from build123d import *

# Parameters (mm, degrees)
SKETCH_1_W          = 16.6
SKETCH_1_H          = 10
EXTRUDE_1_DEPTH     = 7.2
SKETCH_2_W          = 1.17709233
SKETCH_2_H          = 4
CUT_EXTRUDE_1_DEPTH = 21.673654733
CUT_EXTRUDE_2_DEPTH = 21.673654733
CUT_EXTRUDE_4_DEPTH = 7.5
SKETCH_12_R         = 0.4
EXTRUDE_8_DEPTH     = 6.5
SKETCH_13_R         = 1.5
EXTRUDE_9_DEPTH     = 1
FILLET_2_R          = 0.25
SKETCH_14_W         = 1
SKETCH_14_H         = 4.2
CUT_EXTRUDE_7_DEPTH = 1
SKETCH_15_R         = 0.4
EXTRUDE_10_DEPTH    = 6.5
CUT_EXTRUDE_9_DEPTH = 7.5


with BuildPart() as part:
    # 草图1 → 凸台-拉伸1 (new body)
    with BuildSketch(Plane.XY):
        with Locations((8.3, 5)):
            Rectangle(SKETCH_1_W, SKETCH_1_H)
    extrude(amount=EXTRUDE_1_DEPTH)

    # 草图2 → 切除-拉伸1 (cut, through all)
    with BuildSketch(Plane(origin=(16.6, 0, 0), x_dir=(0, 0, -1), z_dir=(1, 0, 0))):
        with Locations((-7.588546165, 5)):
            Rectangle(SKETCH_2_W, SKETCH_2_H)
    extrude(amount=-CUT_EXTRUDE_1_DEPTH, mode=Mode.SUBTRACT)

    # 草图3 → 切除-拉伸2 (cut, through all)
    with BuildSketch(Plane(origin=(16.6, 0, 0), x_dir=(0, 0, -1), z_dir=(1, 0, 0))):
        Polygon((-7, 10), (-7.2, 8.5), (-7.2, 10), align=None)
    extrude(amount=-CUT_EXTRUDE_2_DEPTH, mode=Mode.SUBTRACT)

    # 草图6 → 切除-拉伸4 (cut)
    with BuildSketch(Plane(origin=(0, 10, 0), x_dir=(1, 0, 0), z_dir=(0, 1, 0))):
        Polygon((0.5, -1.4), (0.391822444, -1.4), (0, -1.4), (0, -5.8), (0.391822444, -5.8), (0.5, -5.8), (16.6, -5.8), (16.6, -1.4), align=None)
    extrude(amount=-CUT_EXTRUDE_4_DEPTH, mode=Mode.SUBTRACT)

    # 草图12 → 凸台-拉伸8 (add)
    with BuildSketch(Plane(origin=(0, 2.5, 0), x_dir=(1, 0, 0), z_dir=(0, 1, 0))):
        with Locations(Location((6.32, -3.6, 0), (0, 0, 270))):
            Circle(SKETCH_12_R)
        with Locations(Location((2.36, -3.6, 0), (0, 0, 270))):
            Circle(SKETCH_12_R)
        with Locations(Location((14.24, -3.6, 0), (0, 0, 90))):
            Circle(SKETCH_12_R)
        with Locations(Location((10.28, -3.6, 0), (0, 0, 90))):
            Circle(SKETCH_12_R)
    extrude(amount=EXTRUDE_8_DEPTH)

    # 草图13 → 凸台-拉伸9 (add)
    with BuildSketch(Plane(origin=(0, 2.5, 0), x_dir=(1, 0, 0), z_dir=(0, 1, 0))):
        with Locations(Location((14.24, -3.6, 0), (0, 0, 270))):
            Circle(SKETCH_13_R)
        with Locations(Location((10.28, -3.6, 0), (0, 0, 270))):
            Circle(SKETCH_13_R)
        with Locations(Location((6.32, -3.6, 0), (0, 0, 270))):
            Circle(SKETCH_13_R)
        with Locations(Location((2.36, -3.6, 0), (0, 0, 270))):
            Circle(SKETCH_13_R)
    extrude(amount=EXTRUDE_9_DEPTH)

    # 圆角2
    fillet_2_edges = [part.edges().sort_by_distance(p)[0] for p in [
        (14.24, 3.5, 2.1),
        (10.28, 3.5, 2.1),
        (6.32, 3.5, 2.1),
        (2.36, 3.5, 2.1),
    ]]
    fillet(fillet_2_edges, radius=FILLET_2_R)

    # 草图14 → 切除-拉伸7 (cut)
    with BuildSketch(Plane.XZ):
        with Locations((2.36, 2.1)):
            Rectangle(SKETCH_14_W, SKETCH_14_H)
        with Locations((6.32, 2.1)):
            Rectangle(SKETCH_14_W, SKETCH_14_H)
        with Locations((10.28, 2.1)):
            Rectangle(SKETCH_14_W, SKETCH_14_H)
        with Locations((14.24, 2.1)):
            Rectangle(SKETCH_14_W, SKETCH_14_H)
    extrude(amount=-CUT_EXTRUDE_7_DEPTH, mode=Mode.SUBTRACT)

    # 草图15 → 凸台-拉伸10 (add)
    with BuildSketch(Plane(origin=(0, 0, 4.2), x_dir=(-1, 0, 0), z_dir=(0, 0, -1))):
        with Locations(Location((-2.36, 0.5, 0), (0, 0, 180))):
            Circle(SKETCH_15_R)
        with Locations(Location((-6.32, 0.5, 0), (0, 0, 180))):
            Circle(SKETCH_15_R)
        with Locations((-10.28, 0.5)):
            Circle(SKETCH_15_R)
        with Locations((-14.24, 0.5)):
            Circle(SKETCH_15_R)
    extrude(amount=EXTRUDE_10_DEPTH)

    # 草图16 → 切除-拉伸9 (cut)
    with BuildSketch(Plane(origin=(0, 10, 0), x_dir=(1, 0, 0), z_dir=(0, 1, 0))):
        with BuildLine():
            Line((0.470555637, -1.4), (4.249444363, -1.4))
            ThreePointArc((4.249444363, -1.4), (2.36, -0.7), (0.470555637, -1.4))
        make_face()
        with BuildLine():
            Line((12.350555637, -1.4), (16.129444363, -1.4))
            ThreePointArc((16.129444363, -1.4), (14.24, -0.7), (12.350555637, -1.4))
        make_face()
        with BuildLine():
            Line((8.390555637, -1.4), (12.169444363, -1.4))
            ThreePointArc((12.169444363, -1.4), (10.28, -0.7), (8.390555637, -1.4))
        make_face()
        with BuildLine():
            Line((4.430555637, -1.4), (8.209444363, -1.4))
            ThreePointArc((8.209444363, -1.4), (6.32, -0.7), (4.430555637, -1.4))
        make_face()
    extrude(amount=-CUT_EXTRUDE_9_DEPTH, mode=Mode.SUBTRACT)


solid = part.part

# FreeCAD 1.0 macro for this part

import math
import FreeCAD as App
import Part
import Sketcher
from FreeCAD import Vector


def edges_at(feature, points):
    """Names of the edges that pass closest to the given points."""
    edges = feature.Shape.Edges
    near = lambda p: min(range(len(edges)), key=lambda i: edges[i].distToShape(Part.Vertex(*p))[0])
    return sorted({f"Edge{near(p) + 1}" for p in points})

doc = App.newDocument("Part")
body = doc.addObject("PartDesign::Body", "Body")

# Sketch on XY plane
sketch1 = body.newObject("Sketcher::SketchObject", "Sketch")
sketch1.AttachmentSupport = (doc.getObject("XY_Plane"), [""])
sketch1.MapMode = "FlatFace"
sketch1.addGeometry(Part.LineSegment(Vector(0, 10, 0), Vector(0, 0, 0)), False)
sketch1.addGeometry(Part.LineSegment(Vector(0, 0, 0), Vector(17, 0, 0)), False)
sketch1.addGeometry(Part.LineSegment(Vector(17, 0, 0), Vector(17, 10, 0)), False)
sketch1.addGeometry(Part.LineSegment(Vector(17, 10, 0), Vector(0, 10, 0)), False)
sketch1.addConstraint(Sketcher.Constraint("Coincident", 0, 2, 1, 1))
sketch1.addConstraint(Sketcher.Constraint("Coincident", 1, 2, 2, 1))
sketch1.addConstraint(Sketcher.Constraint("Coincident", 2, 2, 3, 1))
sketch1.addConstraint(Sketcher.Constraint("Coincident", 3, 2, 0, 1))
sketch1.addConstraint(Sketcher.Constraint("Vertical", 0))
sketch1.addConstraint(Sketcher.Constraint("Horizontal", 1))
sketch1.addConstraint(Sketcher.Constraint("Vertical", 2))
sketch1.addConstraint(Sketcher.Constraint("Horizontal", 3))
sketch1.addConstraint(Sketcher.Constraint("Coincident", 0, 2, -1, 1))
sketch1.addConstraint(Sketcher.Constraint("DistanceY", 0, 2, 0, 1, 10.0))
sketch1.addConstraint(Sketcher.Constraint("DistanceX", 1, 1, 1, 2, 16.6))
pad1 = body.newObject("PartDesign::Pad", "Pad")
pad1.Profile = sketch1
pad1.Length = 7.2

# Sketch on YZ plane
sketch2 = body.newObject("Sketcher::SketchObject", "Sketch001")
sketch2.AttachmentSupport = (doc.getObject("YZ_Plane"), [""])
sketch2.MapMode = "FlatFace"
sketch2.AttachmentOffset = App.Placement(Vector(0, 0, 16.6), App.Rotation())
sketch2.addGeometry(Part.LineSegment(Vector(7, 8.2, 0), Vector(3, 8.2, 0)), False)
sketch2.addGeometry(Part.LineSegment(Vector(3, 8.2, 0), Vector(3, 7, 0)), False)
sketch2.addGeometry(Part.LineSegment(Vector(3, 7, 0), Vector(7, 7, 0)), False)
sketch2.addGeometry(Part.LineSegment(Vector(7, 7, 0), Vector(7, 8.2, 0)), False)
sketch2.addConstraint(Sketcher.Constraint("Coincident", 0, 2, 1, 1))
sketch2.addConstraint(Sketcher.Constraint("Coincident", 1, 2, 2, 1))
sketch2.addConstraint(Sketcher.Constraint("Coincident", 2, 2, 3, 1))
sketch2.addConstraint(Sketcher.Constraint("Coincident", 3, 2, 0, 1))
sketch2.addConstraint(Sketcher.Constraint("Horizontal", 0))
sketch2.addConstraint(Sketcher.Constraint("Vertical", 1))
sketch2.addConstraint(Sketcher.Constraint("Horizontal", 2))
sketch2.addConstraint(Sketcher.Constraint("Vertical", 3))
sketch2.addConstraint(Sketcher.Constraint("DistanceX", 0, 2, 0, 1, 4.0))
sketch2.addConstraint(Sketcher.Constraint("DistanceX", -1, 1, 0, 2, 3.0))
sketch2.addConstraint(Sketcher.Constraint("DistanceY", -1, 1, 1, 2, 7.0))
sketch2.addConstraint(Sketcher.Constraint("DistanceY", 1, 2, 1, 1, 1.177092))
pocket1 = body.newObject("PartDesign::Pocket", "Pocket")
pocket1.Profile = sketch2
pocket1.Type = "ThroughAll"

# Sketch on YZ plane
sketch3 = body.newObject("Sketcher::SketchObject", "Sketch002")
sketch3.AttachmentSupport = (doc.getObject("YZ_Plane"), [""])
sketch3.MapMode = "FlatFace"
sketch3.AttachmentOffset = App.Placement(Vector(0, 0, 16.6), App.Rotation())
sketch3.addGeometry(Part.LineSegment(Vector(8.5, 7.2, 0), Vector(10, 7, 0)), False)
sketch3.addGeometry(Part.LineSegment(Vector(10, 7, 0), Vector(10, 7.2, 0)), False)
sketch3.addGeometry(Part.LineSegment(Vector(10, 7.2, 0), Vector(8.5, 7.2, 0)), False)
sketch3.addConstraint(Sketcher.Constraint("Coincident", 0, 2, 1, 1))
sketch3.addConstraint(Sketcher.Constraint("Coincident", 1, 2, 2, 1))
sketch3.addConstraint(Sketcher.Constraint("Coincident", 2, 2, 0, 1))
sketch3.addConstraint(Sketcher.Constraint("Vertical", 1))
sketch3.addConstraint(Sketcher.Constraint("Horizontal", 2))
sketch3.addConstraint(Sketcher.Constraint("DistanceX", 2, 2, 2, 1, 1.5))
sketch3.addConstraint(Sketcher.Constraint("DistanceY", 1, 1, 1, 2, 0.2))
sketch3.addConstraint(Sketcher.Constraint("DistanceX", -1, 1, 0, 2, 10.0))
sketch3.addConstraint(Sketcher.Constraint("DistanceY", -1, 1, 0, 2, 7.0))
pocket2 = body.newObject("PartDesign::Pocket", "Pocket001")
pocket2.Profile = sketch3
pocket2.Type = "ThroughAll"

# Sketch on XZ plane
sketch4 = body.newObject("Sketcher::SketchObject", "Sketch003")
sketch4.AttachmentSupport = (doc.getObject("XZ_Plane"), [""])
sketch4.MapMode = "FlatFace"
sketch4.AttachmentOffset = App.Placement(Vector(0, 0, -10), App.Rotation())
sketch4.addGeometry(Part.LineSegment(Vector(0, 1.4, 0), Vector(0, 5.8, 0)), False)
sketch4.addGeometry(Part.LineSegment(Vector(0, 5.8, 0), Vector(16.6, 5.8, 0)), False)
sketch4.addGeometry(Part.LineSegment(Vector(16.6, 5.8, 0), Vector(16.6, 1.4, 0)), False)
sketch4.addGeometry(Part.LineSegment(Vector(16.6, 1.4, 0), Vector(0, 1.4, 0)), False)
sketch4.addConstraint(Sketcher.Constraint("Coincident", 0, 2, 1, 1))
sketch4.addConstraint(Sketcher.Constraint("Coincident", 1, 2, 2, 1))
sketch4.addConstraint(Sketcher.Constraint("Coincident", 2, 2, 3, 1))
sketch4.addConstraint(Sketcher.Constraint("Coincident", 3, 2, 0, 1))
sketch4.addConstraint(Sketcher.Constraint("Vertical", 0))
sketch4.addConstraint(Sketcher.Constraint("Horizontal", 1))
sketch4.addConstraint(Sketcher.Constraint("Vertical", 2))
sketch4.addConstraint(Sketcher.Constraint("Horizontal", 3))
sketch4.addConstraint(Sketcher.Constraint("PointOnObject", 0, 2, -2))
sketch4.addConstraint(Sketcher.Constraint("DistanceX", 1, 1, 1, 2, 16.6))
sketch4.addConstraint(Sketcher.Constraint("DistanceY", 0, 1, 0, 2, 4.4))
sketch4.addConstraint(Sketcher.Constraint("DistanceY", -1, 1, 0, 2, 5.8))
pocket3 = body.newObject("PartDesign::Pocket", "Pocket002")
pocket3.Profile = sketch4
pocket3.Length = 7.5
pocket3.Reversed = True

# Sketch on XZ plane
sketch5 = body.newObject("Sketcher::SketchObject", "Sketch004")
sketch5.AttachmentSupport = (doc.getObject("XZ_Plane"), [""])
sketch5.MapMode = "FlatFace"
sketch5.AttachmentOffset = App.Placement(Vector(0, 0, -2.5), App.Rotation())
sketch5.addGeometry(Part.Circle(Vector(6.32, 3.6, 0), Vector(0, 0, 1), 0.4), False)
sketch5.addGeometry(Part.Circle(Vector(2.36, 3.6, 0), Vector(0, 0, 1), 0.4), False)
sketch5.addGeometry(Part.Circle(Vector(14.24, 3.6, 0), Vector(0, 0, 1), 0.4), False)
sketch5.addGeometry(Part.Circle(Vector(10.28, 3.6, 0), Vector(0, 0, 1), 0.4), False)
sketch5.addConstraint(Sketcher.Constraint("Equal", 0, 1))
sketch5.addConstraint(Sketcher.Constraint("Equal", 1, 2))
sketch5.addConstraint(Sketcher.Constraint("Equal", 2, 3))
sketch5.addConstraint(Sketcher.Constraint("Horizontal", 0, 3, 1, 3))
sketch5.addConstraint(Sketcher.Constraint("Horizontal", 1, 3, 2, 3))
sketch5.addConstraint(Sketcher.Constraint("Horizontal", 2, 3, 3, 3))
sketch5.addConstraint(Sketcher.Constraint("Diameter", 0, 0.8))
sketch5.addConstraint(Sketcher.Constraint("DistanceY", -1, 1, 0, 3, 3.6))
sketch5.addConstraint(Sketcher.Constraint("DistanceX", -1, 1, 0, 3, 6.32))
sketch5.addConstraint(Sketcher.Constraint("DistanceX", -1, 1, 1, 3, 2.36))
sketch5.addConstraint(Sketcher.Constraint("DistanceX", -1, 1, 2, 3, 14.24))
sketch5.addConstraint(Sketcher.Constraint("DistanceX", -1, 1, 3, 3, 10.28))
pad2 = body.newObject("PartDesign::Pad", "Pad001")
pad2.Profile = sketch5
pad2.Length = 6.5
pad2.Reversed = True

# Sketch on XZ plane
sketch6 = body.newObject("Sketcher::SketchObject", "Sketch005")
sketch6.AttachmentSupport = (doc.getObject("XZ_Plane"), [""])
sketch6.MapMode = "FlatFace"
sketch6.AttachmentOffset = App.Placement(Vector(0, 0, -2.5), App.Rotation())
sketch6.addGeometry(Part.Circle(Vector(14.2, 3.6, 0), Vector(0, 0, 1), 1.5), False)
sketch6.addGeometry(Part.Circle(Vector(10.3, 3.6, 0), Vector(0, 0, 1), 1.5), False)
sketch6.addGeometry(Part.Circle(Vector(6.3, 3.6, 0), Vector(0, 0, 1), 1.5), False)
sketch6.addGeometry(Part.Circle(Vector(2.4, 3.6, 0), Vector(0, 0, 1), 1.5), False)
sketch6.addConstraint(Sketcher.Constraint("Equal", 0, 1))
sketch6.addConstraint(Sketcher.Constraint("Equal", 1, 2))
sketch6.addConstraint(Sketcher.Constraint("Equal", 2, 3))
sketch6.addConstraint(Sketcher.Constraint("Horizontal", 0, 3, 1, 3))
sketch6.addConstraint(Sketcher.Constraint("Horizontal", 1, 3, 2, 3))
sketch6.addConstraint(Sketcher.Constraint("Horizontal", 2, 3, 3, 3))
sketch6.addConstraint(Sketcher.Constraint("Diameter", 0, 3.0))
sketch6.addConstraint(Sketcher.Constraint("DistanceY", -1, 1, 0, 3, 3.6))
sketch6.addConstraint(Sketcher.Constraint("DistanceX", -1, 1, 0, 3, 14.24))
sketch6.addConstraint(Sketcher.Constraint("DistanceX", -1, 1, 1, 3, 10.28))
sketch6.addConstraint(Sketcher.Constraint("DistanceX", -1, 1, 2, 3, 6.32))
sketch6.addConstraint(Sketcher.Constraint("DistanceX", -1, 1, 3, 3, 2.36))
pad3 = body.newObject("PartDesign::Pad", "Pad002")
pad3.Profile = sketch6
pad3.Length = 1
pad3.Reversed = True
doc.recompute()

fillet = body.newObject("PartDesign::Fillet", "Fillet")
fillet.Base = (pad3, edges_at(pad3, [
    (14.24, 3.5, 2.1),
    (10.28, 3.5, 2.1),
    (6.32, 3.5, 2.1),
    (2.36, 3.5, 2.1),
]))
fillet.Radius = 0.25

# Sketch on XZ plane
sketch7 = body.newObject("Sketcher::SketchObject", "Sketch006")
sketch7.AttachmentSupport = (doc.getObject("XZ_Plane"), [""])
sketch7.MapMode = "FlatFace"
sketch7.addGeometry(Part.LineSegment(Vector(1.9, 4.2, 0), Vector(1.9, 0, 0)), False)
sketch7.addGeometry(Part.LineSegment(Vector(1.9, 0, 0), Vector(2.9, 0, 0)), False)
sketch7.addGeometry(Part.LineSegment(Vector(2.9, 0, 0), Vector(2.9, 4.2, 0)), False)
sketch7.addGeometry(Part.LineSegment(Vector(2.9, 4.2, 0), Vector(1.9, 4.2, 0)), False)
sketch7.addGeometry(Part.LineSegment(Vector(5.8, 4.2, 0), Vector(5.8, 0, 0)), False)
sketch7.addGeometry(Part.LineSegment(Vector(5.8, 0, 0), Vector(6.8, 0, 0)), False)
sketch7.addGeometry(Part.LineSegment(Vector(6.8, 0, 0), Vector(6.8, 4.2, 0)), False)
sketch7.addGeometry(Part.LineSegment(Vector(6.8, 4.2, 0), Vector(5.8, 4.2, 0)), False)
sketch7.addGeometry(Part.LineSegment(Vector(9.8, 4.2, 0), Vector(9.8, 0, 0)), False)
sketch7.addGeometry(Part.LineSegment(Vector(9.8, 0, 0), Vector(10.8, 0, 0)), False)
sketch7.addGeometry(Part.LineSegment(Vector(10.8, 0, 0), Vector(10.8, 4.2, 0)), False)
sketch7.addGeometry(Part.LineSegment(Vector(10.8, 4.2, 0), Vector(9.8, 4.2, 0)), False)
sketch7.addGeometry(Part.LineSegment(Vector(13.7, 4.2, 0), Vector(13.7, 0, 0)), False)
sketch7.addGeometry(Part.LineSegment(Vector(13.7, 0, 0), Vector(14.7, 0, 0)), False)
sketch7.addGeometry(Part.LineSegment(Vector(14.7, 0, 0), Vector(14.7, 4.2, 0)), False)
sketch7.addGeometry(Part.LineSegment(Vector(14.7, 4.2, 0), Vector(13.7, 4.2, 0)), False)
sketch7.addConstraint(Sketcher.Constraint("Coincident", 0, 2, 1, 1))
sketch7.addConstraint(Sketcher.Constraint("Coincident", 1, 2, 2, 1))
sketch7.addConstraint(Sketcher.Constraint("Coincident", 2, 2, 3, 1))
sketch7.addConstraint(Sketcher.Constraint("Coincident", 3, 2, 0, 1))
sketch7.addConstraint(Sketcher.Constraint("Coincident", 4, 2, 5, 1))
sketch7.addConstraint(Sketcher.Constraint("Coincident", 5, 2, 6, 1))
sketch7.addConstraint(Sketcher.Constraint("Coincident", 6, 2, 7, 1))
sketch7.addConstraint(Sketcher.Constraint("Coincident", 7, 2, 4, 1))
sketch7.addConstraint(Sketcher.Constraint("Coincident", 8, 2, 9, 1))
sketch7.addConstraint(Sketcher.Constraint("Coincident", 9, 2, 10, 1))
sketch7.addConstraint(Sketcher.Constraint("Coincident", 10, 2, 11, 1))
sketch7.addConstraint(Sketcher.Constraint("Coincident", 11, 2, 8, 1))
sketch7.addConstraint(Sketcher.Constraint("Coincident", 12, 2, 13, 1))
sketch7.addConstraint(Sketcher.Constraint("Coincident", 13, 2, 14, 1))
sketch7.addConstraint(Sketcher.Constraint("Coincident", 14, 2, 15, 1))
sketch7.addConstraint(Sketcher.Constraint("Coincident", 15, 2, 12, 1))
sketch7.addConstraint(Sketcher.Constraint("Vertical", 0))
sketch7.addConstraint(Sketcher.Constraint("Horizontal", 1))
sketch7.addConstraint(Sketcher.Constraint("Vertical", 2))
sketch7.addConstraint(Sketcher.Constraint("Horizontal", 3))
sketch7.addConstraint(Sketcher.Constraint("Vertical", 4))
sketch7.addConstraint(Sketcher.Constraint("Horizontal", 5))
sketch7.addConstraint(Sketcher.Constraint("Vertical", 6))
sketch7.addConstraint(Sketcher.Constraint("Horizontal", 7))
sketch7.addConstraint(Sketcher.Constraint("Vertical", 8))
sketch7.addConstraint(Sketcher.Constraint("Horizontal", 9))
sketch7.addConstraint(Sketcher.Constraint("Vertical", 10))
sketch7.addConstraint(Sketcher.Constraint("Horizontal", 11))
sketch7.addConstraint(Sketcher.Constraint("Vertical", 12))
sketch7.addConstraint(Sketcher.Constraint("Horizontal", 13))
sketch7.addConstraint(Sketcher.Constraint("Vertical", 14))
sketch7.addConstraint(Sketcher.Constraint("Horizontal", 15))
sketch7.addConstraint(Sketcher.Constraint("PointOnObject", 0, 2, -1))
sketch7.addConstraint(Sketcher.Constraint("PointOnObject", 4, 2, -1))
sketch7.addConstraint(Sketcher.Constraint("PointOnObject", 8, 2, -1))
sketch7.addConstraint(Sketcher.Constraint("PointOnObject", 12, 2, -1))
sketch7.addConstraint(Sketcher.Constraint("Horizontal", 3, 2, 6, 2))
sketch7.addConstraint(Sketcher.Constraint("Horizontal", 7, 2, 10, 2))
sketch7.addConstraint(Sketcher.Constraint("Horizontal", 11, 2, 14, 2))
sketch7.addConstraint(Sketcher.Constraint("Equal", 3, 5))
sketch7.addConstraint(Sketcher.Constraint("Equal", 7, 9))
sketch7.addConstraint(Sketcher.Constraint("Equal", 11, 13))
sketch7.addConstraint(Sketcher.Constraint("DistanceX", 1, 1, 1, 2, 1.0))
sketch7.addConstraint(Sketcher.Constraint("DistanceY", 0, 2, 0, 1, 4.2))
sketch7.addConstraint(Sketcher.Constraint("DistanceX", -1, 1, 0, 2, 1.86))
sketch7.addConstraint(Sketcher.Constraint("DistanceX", -1, 1, 4, 2, 5.82))
sketch7.addConstraint(Sketcher.Constraint("DistanceX", -1, 1, 8, 2, 9.78))
sketch7.addConstraint(Sketcher.Constraint("DistanceX", -1, 1, 12, 2, 13.74))
pocket4 = body.newObject("PartDesign::Pocket", "Pocket003")
pocket4.Profile = sketch7
pocket4.Length = 1

# Sketch on XY plane
sketch8 = body.newObject("Sketcher::SketchObject", "Sketch007")
sketch8.AttachmentSupport = (doc.getObject("XY_Plane"), [""])
sketch8.MapMode = "FlatFace"
sketch8.AttachmentOffset = App.Placement(Vector(0, 0, 4.2), App.Rotation())
sketch8.addGeometry(Part.Circle(Vector(2.36, 0.5, 0), Vector(0, 0, 1), 0.4), False)
sketch8.addGeometry(Part.Circle(Vector(6.32, 0.5, 0), Vector(0, 0, 1), 0.4), False)
sketch8.addGeometry(Part.Circle(Vector(10.28, 0.5, 0), Vector(0, 0, 1), 0.4), False)
sketch8.addGeometry(Part.Circle(Vector(14.24, 0.5, 0), Vector(0, 0, 1), 0.4), False)
sketch8.addConstraint(Sketcher.Constraint("Equal", 0, 1))
sketch8.addConstraint(Sketcher.Constraint("Equal", 1, 2))
sketch8.addConstraint(Sketcher.Constraint("Equal", 2, 3))
sketch8.addConstraint(Sketcher.Constraint("Horizontal", 0, 3, 1, 3))
sketch8.addConstraint(Sketcher.Constraint("Horizontal", 1, 3, 2, 3))
sketch8.addConstraint(Sketcher.Constraint("Horizontal", 2, 3, 3, 3))
sketch8.addConstraint(Sketcher.Constraint("Diameter", 0, 0.8))
sketch8.addConstraint(Sketcher.Constraint("DistanceY", -1, 1, 0, 3, 0.5))
sketch8.addConstraint(Sketcher.Constraint("DistanceX", -1, 1, 0, 3, 2.36))
sketch8.addConstraint(Sketcher.Constraint("DistanceX", -1, 1, 1, 3, 6.32))
sketch8.addConstraint(Sketcher.Constraint("DistanceX", -1, 1, 2, 3, 10.28))
sketch8.addConstraint(Sketcher.Constraint("DistanceX", -1, 1, 3, 3, 14.24))
pad4 = body.newObject("PartDesign::Pad", "Pad003")
pad4.Profile = sketch8
pad4.Length = 6.5
pad4.Reversed = True

# Sketch on XZ plane
sketch9 = body.newObject("Sketcher::SketchObject", "Sketch008")
sketch9.AttachmentSupport = (doc.getObject("XZ_Plane"), [""])
sketch9.MapMode = "FlatFace"
sketch9.AttachmentOffset = App.Placement(Vector(0, 0, -10), App.Rotation())
sketch9.addGeometry(Part.LineSegment(Vector(0.5, 1.4, 0), Vector(4.2, 1.4, 0)), False)
sketch9.addGeometry(Part.ArcOfCircle(Part.Circle(Vector(2.4, 3.6, 0), Vector(0, 0, 1), 2.9), math.radians(-131), math.radians(-49)), False)
sketch9.addGeometry(Part.LineSegment(Vector(12.4, 1.4, 0), Vector(16.1, 1.4, 0)), False)
sketch9.addGeometry(Part.ArcOfCircle(Part.Circle(Vector(14.2, 3.6, 0), Vector(0, 0, 1), 2.9), math.radians(-131), math.radians(-49)), False)
sketch9.addGeometry(Part.LineSegment(Vector(8.4, 1.4, 0), Vector(12.2, 1.4, 0)), False)
sketch9.addGeometry(Part.ArcOfCircle(Part.Circle(Vector(10.3, 3.6, 0), Vector(0, 0, 1), 2.9), math.radians(-131), math.radians(-49)), False)
sketch9.addGeometry(Part.LineSegment(Vector(4.4, 1.4, 0), Vector(8.2, 1.4, 0)), False)
sketch9.addGeometry(Part.ArcOfCircle(Part.Circle(Vector(6.3, 3.6, 0), Vector(0, 0, 1), 2.9), math.radians(-131), math.radians(-49)), False)
sketch9.addConstraint(Sketcher.Constraint("Coincident", 0, 1, 1, 1))
sketch9.addConstraint(Sketcher.Constraint("Coincident", 1, 2, 0, 2))
sketch9.addConstraint(Sketcher.Constraint("Coincident", 2, 1, 3, 1))
sketch9.addConstraint(Sketcher.Constraint("Coincident", 3, 2, 2, 2))
sketch9.addConstraint(Sketcher.Constraint("Coincident", 4, 1, 5, 1))
sketch9.addConstraint(Sketcher.Constraint("Coincident", 5, 2, 4, 2))
sketch9.addConstraint(Sketcher.Constraint("Coincident", 6, 1, 7, 1))
sketch9.addConstraint(Sketcher.Constraint("Coincident", 7, 2, 6, 2))
sketch9.addConstraint(Sketcher.Constraint("Horizontal", 0))
sketch9.addConstraint(Sketcher.Constraint("Horizontal", 2))
sketch9.addConstraint(Sketcher.Constraint("Horizontal", 4))
sketch9.addConstraint(Sketcher.Constraint("Horizontal", 6))
sketch9.addConstraint(Sketcher.Constraint("Equal", 1, 3))
sketch9.addConstraint(Sketcher.Constraint("Equal", 3, 5))
sketch9.addConstraint(Sketcher.Constraint("Equal", 5, 7))
sketch9.addConstraint(Sketcher.Constraint("Horizontal", 1, 3, 3, 3))
sketch9.addConstraint(Sketcher.Constraint("Horizontal", 3, 3, 5, 3))
sketch9.addConstraint(Sketcher.Constraint("Horizontal", 5, 3, 7, 3))
sketch9.addConstraint(Sketcher.Constraint("Horizontal", 1, 2, 2, 1))
sketch9.addConstraint(Sketcher.Constraint("Horizontal", 3, 2, 4, 1))
sketch9.addConstraint(Sketcher.Constraint("Horizontal", 5, 2, 6, 1))
sketch9.addConstraint(Sketcher.Constraint("Radius", 1, 2.9))
sketch9.addConstraint(Sketcher.Constraint("DistanceY", -1, 1, 1, 3, 3.6))
sketch9.addConstraint(Sketcher.Constraint("DistanceY", -1, 1, 0, 1, 1.4))
sketch9.addConstraint(Sketcher.Constraint("DistanceX", -1, 1, 1, 3, 2.36))
sketch9.addConstraint(Sketcher.Constraint("DistanceX", -1, 1, 3, 3, 14.24))
sketch9.addConstraint(Sketcher.Constraint("DistanceX", -1, 1, 5, 3, 10.28))
sketch9.addConstraint(Sketcher.Constraint("DistanceX", -1, 1, 7, 3, 6.32))
pocket5 = body.newObject("PartDesign::Pocket", "Pocket004")
pocket5.Profile = sketch9
pocket5.Length = 7.5
pocket5.Reversed = True

doc.recompute()
